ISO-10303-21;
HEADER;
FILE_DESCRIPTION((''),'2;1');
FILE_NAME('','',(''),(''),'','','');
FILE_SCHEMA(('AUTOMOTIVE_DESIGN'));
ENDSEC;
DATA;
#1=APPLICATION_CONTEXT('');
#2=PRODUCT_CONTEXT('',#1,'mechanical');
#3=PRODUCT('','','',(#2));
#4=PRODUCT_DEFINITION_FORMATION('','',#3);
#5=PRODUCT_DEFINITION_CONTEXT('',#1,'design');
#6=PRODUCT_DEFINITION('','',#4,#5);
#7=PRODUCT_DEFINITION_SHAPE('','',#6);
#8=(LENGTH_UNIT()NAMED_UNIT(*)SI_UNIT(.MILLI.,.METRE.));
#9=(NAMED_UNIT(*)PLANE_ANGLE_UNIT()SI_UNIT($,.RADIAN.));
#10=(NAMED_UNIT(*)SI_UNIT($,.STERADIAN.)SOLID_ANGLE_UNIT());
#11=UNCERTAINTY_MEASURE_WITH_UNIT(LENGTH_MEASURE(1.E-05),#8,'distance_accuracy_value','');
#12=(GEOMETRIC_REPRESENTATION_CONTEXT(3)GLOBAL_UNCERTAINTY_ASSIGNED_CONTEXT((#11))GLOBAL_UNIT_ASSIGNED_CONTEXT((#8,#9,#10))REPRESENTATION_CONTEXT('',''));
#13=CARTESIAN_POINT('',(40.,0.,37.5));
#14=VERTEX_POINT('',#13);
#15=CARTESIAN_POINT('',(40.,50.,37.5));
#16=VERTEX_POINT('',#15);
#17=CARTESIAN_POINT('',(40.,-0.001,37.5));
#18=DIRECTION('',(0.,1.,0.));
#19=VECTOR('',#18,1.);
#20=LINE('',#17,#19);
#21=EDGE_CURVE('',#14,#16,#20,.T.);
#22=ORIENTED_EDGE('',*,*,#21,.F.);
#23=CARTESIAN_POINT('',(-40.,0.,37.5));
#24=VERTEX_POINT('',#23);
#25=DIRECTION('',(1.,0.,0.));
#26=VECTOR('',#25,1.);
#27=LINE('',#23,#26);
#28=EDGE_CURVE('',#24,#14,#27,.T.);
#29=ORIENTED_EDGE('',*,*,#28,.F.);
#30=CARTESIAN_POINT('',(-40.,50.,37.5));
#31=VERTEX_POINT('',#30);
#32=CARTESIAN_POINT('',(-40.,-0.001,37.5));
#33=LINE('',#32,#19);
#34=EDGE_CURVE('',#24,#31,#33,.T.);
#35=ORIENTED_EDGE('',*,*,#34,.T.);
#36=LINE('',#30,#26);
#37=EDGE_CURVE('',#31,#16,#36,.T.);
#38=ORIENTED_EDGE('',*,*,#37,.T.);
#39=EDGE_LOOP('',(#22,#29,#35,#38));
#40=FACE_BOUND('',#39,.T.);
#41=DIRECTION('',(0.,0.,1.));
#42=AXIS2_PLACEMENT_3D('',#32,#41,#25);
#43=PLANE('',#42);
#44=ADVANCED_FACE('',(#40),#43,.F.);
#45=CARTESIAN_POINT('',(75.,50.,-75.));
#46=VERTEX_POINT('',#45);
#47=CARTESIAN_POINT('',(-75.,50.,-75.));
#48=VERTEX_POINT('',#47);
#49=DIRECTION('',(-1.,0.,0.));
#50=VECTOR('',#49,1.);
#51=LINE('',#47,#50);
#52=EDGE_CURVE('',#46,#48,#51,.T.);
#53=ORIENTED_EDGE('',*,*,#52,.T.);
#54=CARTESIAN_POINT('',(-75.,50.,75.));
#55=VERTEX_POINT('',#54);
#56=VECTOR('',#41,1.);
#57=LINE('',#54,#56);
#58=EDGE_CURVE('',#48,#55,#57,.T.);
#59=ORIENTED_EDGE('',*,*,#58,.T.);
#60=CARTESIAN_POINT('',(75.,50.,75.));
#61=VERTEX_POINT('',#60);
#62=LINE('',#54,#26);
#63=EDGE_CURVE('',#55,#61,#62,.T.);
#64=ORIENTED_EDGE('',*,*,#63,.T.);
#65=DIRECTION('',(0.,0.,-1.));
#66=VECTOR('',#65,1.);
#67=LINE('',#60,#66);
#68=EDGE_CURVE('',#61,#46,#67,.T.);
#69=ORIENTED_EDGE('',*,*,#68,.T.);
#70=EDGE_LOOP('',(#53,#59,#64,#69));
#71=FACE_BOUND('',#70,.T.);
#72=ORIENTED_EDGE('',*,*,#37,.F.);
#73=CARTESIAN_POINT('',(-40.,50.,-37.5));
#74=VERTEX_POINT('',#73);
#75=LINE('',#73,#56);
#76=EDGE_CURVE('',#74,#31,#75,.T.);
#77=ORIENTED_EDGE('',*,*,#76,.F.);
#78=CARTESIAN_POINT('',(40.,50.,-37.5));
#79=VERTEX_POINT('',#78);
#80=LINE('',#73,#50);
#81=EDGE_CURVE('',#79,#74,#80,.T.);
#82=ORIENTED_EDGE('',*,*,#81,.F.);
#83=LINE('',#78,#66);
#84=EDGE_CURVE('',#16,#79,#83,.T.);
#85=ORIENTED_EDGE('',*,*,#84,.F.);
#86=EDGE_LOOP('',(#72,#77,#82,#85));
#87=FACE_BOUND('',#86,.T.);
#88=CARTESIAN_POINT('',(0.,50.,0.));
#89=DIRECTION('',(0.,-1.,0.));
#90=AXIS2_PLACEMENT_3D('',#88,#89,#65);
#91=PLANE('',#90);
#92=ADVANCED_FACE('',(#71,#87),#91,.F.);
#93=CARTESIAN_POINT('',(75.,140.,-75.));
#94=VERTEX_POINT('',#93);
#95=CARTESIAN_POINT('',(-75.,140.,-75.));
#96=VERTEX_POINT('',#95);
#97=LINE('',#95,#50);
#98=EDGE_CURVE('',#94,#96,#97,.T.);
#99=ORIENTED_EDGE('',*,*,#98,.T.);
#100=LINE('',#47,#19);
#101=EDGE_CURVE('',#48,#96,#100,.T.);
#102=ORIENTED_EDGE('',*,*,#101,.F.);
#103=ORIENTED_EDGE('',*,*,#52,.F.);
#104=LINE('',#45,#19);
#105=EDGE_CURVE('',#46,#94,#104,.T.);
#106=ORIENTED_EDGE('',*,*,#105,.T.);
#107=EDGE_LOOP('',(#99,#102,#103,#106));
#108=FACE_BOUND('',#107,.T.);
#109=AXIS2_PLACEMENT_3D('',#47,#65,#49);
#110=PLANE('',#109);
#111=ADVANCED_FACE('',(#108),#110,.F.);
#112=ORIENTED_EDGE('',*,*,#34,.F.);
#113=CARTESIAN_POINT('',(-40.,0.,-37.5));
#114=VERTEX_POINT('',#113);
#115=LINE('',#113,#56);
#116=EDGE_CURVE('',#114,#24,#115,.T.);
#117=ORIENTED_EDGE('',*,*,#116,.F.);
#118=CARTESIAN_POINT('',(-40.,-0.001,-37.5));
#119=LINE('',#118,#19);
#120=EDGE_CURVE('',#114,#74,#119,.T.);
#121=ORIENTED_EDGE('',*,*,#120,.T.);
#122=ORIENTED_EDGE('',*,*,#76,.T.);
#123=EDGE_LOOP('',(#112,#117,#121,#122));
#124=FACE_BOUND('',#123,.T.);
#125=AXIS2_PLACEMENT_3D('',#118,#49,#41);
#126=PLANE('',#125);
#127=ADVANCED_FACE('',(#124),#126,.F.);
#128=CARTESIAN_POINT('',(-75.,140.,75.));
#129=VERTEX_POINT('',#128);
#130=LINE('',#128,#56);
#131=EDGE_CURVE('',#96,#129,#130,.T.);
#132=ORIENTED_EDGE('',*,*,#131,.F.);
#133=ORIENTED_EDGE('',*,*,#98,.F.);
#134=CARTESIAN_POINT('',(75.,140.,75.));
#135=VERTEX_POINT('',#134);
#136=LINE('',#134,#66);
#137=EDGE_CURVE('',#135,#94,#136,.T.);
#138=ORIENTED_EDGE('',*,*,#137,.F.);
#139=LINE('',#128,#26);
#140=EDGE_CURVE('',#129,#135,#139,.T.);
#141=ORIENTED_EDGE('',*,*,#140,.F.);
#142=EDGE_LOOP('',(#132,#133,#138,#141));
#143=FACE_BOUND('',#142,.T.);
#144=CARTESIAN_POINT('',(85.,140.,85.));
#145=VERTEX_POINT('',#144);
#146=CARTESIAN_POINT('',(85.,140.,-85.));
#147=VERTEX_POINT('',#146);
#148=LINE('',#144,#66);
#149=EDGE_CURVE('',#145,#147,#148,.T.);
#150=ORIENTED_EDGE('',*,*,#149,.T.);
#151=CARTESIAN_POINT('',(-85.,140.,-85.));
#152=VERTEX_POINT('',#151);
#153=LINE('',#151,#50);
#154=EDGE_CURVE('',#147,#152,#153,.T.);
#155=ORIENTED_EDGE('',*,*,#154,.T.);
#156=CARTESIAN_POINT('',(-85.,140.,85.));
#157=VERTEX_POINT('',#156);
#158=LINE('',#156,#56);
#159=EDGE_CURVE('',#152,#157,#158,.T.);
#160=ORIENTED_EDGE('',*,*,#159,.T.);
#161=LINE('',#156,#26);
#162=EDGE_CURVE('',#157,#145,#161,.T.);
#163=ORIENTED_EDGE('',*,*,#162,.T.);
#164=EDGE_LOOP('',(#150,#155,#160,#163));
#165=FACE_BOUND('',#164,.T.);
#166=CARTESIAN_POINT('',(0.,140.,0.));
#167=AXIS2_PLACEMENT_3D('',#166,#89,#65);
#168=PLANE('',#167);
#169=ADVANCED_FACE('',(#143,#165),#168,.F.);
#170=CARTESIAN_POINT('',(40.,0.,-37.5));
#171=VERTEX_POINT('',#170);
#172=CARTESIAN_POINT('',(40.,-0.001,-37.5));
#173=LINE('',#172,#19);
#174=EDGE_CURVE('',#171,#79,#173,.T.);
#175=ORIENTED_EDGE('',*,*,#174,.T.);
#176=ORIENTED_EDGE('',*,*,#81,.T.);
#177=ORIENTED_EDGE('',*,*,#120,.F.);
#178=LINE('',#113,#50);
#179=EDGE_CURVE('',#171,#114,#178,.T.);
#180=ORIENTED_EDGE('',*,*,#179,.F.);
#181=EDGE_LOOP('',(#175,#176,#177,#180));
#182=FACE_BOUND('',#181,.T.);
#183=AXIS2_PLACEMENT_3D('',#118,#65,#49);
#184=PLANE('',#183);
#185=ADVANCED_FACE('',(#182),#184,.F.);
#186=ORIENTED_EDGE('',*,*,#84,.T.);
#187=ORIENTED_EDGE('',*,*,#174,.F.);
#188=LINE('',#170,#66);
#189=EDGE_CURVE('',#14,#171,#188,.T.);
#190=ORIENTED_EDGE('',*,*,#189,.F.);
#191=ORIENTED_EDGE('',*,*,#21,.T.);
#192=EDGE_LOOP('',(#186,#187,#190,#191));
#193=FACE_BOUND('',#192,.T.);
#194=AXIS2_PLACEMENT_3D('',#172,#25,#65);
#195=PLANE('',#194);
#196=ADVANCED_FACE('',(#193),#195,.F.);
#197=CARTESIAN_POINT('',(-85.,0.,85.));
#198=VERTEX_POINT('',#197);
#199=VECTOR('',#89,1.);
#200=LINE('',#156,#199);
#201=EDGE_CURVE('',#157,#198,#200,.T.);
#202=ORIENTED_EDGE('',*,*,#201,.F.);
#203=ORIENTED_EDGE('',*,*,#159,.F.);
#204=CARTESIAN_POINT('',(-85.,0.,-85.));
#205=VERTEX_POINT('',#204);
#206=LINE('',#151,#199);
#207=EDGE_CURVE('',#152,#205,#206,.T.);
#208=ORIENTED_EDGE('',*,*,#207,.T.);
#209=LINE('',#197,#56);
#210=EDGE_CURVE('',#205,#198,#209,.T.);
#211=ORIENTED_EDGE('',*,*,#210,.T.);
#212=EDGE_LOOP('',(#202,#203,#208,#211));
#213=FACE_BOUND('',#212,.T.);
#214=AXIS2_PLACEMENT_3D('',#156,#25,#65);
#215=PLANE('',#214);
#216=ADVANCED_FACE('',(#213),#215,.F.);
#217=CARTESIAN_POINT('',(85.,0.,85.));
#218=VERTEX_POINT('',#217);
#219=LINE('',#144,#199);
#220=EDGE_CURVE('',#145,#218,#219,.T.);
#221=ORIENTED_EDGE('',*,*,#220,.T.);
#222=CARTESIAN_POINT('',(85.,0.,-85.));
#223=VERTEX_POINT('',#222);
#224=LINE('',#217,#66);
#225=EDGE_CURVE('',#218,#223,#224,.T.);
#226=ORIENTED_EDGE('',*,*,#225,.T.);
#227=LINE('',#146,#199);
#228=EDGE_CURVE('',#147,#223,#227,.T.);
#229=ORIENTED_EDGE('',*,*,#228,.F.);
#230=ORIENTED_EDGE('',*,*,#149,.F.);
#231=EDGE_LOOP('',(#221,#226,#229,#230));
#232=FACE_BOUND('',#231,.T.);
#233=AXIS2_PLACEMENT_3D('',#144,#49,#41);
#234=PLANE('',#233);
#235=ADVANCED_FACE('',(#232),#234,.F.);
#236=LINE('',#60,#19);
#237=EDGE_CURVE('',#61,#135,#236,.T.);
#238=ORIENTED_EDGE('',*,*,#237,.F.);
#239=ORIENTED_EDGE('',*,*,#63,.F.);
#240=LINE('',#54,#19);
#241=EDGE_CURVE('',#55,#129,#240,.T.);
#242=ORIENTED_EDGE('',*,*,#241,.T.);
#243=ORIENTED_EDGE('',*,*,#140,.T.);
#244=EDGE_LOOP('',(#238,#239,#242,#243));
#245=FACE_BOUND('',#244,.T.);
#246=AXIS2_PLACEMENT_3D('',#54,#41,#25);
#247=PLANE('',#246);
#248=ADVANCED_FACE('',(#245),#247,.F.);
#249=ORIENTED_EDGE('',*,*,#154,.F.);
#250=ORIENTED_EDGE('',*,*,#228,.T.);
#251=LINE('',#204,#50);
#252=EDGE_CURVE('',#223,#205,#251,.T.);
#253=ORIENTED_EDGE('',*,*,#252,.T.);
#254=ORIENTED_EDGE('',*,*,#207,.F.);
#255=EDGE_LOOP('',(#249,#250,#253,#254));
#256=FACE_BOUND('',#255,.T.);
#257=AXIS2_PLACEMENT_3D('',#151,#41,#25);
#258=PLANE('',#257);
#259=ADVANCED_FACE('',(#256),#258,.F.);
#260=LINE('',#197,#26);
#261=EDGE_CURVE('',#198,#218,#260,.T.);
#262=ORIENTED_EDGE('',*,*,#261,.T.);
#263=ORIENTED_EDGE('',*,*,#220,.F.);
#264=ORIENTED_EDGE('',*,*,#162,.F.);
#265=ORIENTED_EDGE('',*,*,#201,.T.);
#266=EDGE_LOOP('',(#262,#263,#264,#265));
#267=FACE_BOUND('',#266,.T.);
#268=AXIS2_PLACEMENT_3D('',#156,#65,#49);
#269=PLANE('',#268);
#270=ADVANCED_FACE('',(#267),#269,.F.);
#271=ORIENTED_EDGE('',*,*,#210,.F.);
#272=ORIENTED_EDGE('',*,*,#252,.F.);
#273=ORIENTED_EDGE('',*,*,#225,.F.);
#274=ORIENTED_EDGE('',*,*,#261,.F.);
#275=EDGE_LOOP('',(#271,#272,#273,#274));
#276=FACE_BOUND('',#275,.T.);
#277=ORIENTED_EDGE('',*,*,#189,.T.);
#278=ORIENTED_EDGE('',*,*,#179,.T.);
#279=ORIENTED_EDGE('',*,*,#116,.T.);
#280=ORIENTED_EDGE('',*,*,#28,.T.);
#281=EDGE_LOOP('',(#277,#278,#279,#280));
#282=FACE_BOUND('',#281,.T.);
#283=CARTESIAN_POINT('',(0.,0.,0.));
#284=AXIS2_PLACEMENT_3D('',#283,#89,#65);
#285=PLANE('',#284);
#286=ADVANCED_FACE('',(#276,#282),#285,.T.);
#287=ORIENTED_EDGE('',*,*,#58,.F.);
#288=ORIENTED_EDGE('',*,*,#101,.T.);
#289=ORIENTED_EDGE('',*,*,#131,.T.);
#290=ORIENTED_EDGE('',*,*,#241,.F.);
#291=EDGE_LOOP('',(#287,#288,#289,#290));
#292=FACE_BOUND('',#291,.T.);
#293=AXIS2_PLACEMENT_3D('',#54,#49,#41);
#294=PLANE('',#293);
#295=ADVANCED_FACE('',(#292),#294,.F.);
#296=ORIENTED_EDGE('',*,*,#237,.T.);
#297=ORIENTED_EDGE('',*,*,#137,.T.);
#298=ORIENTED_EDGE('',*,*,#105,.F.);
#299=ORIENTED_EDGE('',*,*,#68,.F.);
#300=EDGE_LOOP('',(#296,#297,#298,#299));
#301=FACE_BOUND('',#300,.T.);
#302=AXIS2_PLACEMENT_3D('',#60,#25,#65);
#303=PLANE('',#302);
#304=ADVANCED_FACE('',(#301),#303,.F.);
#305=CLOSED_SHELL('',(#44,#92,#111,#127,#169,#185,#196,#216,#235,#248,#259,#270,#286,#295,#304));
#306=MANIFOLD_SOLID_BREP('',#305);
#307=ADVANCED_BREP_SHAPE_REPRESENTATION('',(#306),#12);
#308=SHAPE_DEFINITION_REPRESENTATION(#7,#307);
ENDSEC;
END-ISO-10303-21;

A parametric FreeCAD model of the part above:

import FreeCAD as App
import Part
import Sketcher
from FreeCAD import Vector
Q = App.Units.Quantity


def add_polygon(sketch, points):
    """Adds a closed chain of lines whose ends are joined by coincident constraints."""
    first, n = sketch.GeometryCount, len(points)
    for a, b in zip(points, points[1:] + points[:1]):
        sketch.addGeometry(Part.LineSegment(App.Vector(*a, 0), App.Vector(*b, 0)), False)
    for i in range(n):
        sketch.addConstraint(Sketcher.Constraint("Coincident", first + i, 2, first + (i + 1) % n, 1))

doc = App.newDocument("Part")
body = doc.addObject("PartDesign::Body", "Body")

# Sketch on XZ plane
sketch1 = body.newObject("Sketcher::SketchObject", "Sketch")
sketch1.AttachmentSupport = (doc.getObject("XZ_Plane"), [""])
sketch1.MapMode = "FlatFace"
add_polygon(sketch1, [(-85, -85), (-85, 85), (85, 85), (85, -85)])  # lines 0-3
sketch1.addConstraint(Sketcher.Constraint("Vertical", 0))
sketch1.addConstraint(Sketcher.Constraint("Horizontal", 1))
sketch1.addConstraint(Sketcher.Constraint("Vertical", 2))
sketch1.addConstraint(Sketcher.Constraint("Horizontal", 3))
sketch1.addConstraint(Sketcher.Constraint("Symmetric", 0, 2, 2, 2, -1, 1))
sketch1.addConstraint(Sketcher.Constraint("Equal", 3, 0))
sketch1.addConstraint(Sketcher.Constraint("DistanceX", 1, 1, 1, 2, Q("170 mm")))
pad1 = body.newObject("PartDesign::Pad", "Pad")
pad1.Profile = sketch1
pad1.Length = 140
pad1.Reversed = True

# Sketch on XZ plane
sketch2 = body.newObject("Sketcher::SketchObject", "Sketch001")
sketch2.AttachmentSupport = (doc.getObject("XZ_Plane"), [""])
sketch2.MapMode = "FlatFace"
sketch2.AttachmentOffset = App.Placement(Vector(0, 0, -140), App.Rotation())
add_polygon(sketch2, [(-75, -75), (-75, 75), (75, 75), (75, -75)])  # lines 0-3
sketch2.addConstraint(Sketcher.Constraint("Vertical", 0))
sketch2.addConstraint(Sketcher.Constraint("Horizontal", 1))
sketch2.addConstraint(Sketcher.Constraint("Vertical", 2))
sketch2.addConstraint(Sketcher.Constraint("Horizontal", 3))
sketch2.addConstraint(Sketcher.Constraint("Symmetric", 0, 2, 2, 2, -1, 1))
sketch2.addConstraint(Sketcher.Constraint("Equal", 3, 0))
sketch2.addConstraint(Sketcher.Constraint("DistanceX", 1, 1, 1, 2, Q("150 mm")))
pocket1 = body.newObject("PartDesign::Pocket", "Pocket")
pocket1.Profile = sketch2
pocket1.Length = 90
pocket1.Reversed = True

# Sketch on XZ plane
sketch3 = body.newObject("Sketcher::SketchObject", "Sketch002")
sketch3.AttachmentSupport = (doc.getObject("XZ_Plane"), [""])
sketch3.MapMode = "FlatFace"
sketch3.AttachmentOffset = App.Placement(Vector(0, 0, -50), App.Rotation())
add_polygon(sketch3, [(-40, -38), (-40, 38), (40, 38), (40, -38)])  # lines 0-3
sketch3.addConstraint(Sketcher.Constraint("Vertical", 0))
sketch3.addConstraint(Sketcher.Constraint("Horizontal", 1))
sketch3.addConstraint(Sketcher.Constraint("Vertical", 2))
sketch3.addConstraint(Sketcher.Constraint("Horizontal", 3))
sketch3.addConstraint(Sketcher.Constraint("Symmetric", 0, 2, 2, 2, -1, 1))
sketch3.addConstraint(Sketcher.Constraint("DistanceX", 1, 1, 1, 2, Q("80 mm")))
sketch3.addConstraint(Sketcher.Constraint("DistanceY", 0, 1, 0, 2, Q("75 mm")))
pocket2 = body.newObject("PartDesign::Pocket", "Pocket001")
pocket2.Profile = sketch3
pocket2.Type = "UpToFirst"
pocket2.Reversed = True

doc.recompute()
